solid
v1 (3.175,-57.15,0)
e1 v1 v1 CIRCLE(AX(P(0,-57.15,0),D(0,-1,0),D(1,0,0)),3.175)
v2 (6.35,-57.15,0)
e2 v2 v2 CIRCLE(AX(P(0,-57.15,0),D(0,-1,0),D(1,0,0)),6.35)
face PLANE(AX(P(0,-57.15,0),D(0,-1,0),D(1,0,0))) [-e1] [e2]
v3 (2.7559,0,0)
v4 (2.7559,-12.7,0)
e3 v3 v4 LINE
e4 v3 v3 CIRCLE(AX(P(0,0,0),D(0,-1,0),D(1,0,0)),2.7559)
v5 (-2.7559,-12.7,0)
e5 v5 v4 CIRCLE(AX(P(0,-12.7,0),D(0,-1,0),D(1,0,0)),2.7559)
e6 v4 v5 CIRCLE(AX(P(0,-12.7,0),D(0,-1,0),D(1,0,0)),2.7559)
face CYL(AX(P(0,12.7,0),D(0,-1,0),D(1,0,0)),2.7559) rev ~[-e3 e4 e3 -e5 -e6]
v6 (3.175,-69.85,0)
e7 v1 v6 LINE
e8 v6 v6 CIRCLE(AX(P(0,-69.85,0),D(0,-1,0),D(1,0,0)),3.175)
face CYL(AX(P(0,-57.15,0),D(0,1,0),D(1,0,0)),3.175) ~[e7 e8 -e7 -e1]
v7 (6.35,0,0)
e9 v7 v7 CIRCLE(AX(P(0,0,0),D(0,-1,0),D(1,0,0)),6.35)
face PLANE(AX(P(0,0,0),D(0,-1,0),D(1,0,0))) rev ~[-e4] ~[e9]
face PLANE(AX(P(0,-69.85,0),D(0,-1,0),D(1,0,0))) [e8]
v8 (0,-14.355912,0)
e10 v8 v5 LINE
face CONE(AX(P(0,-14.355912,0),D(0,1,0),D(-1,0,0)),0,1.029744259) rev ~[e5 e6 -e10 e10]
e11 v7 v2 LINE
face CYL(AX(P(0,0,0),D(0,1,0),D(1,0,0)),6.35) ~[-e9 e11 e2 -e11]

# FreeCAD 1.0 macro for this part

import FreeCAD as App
import Part
import Sketcher
from FreeCAD import Vector
Q = App.Units.Quantity

doc = App.newDocument("Part")
params = doc.addObject("Spreadsheet::Sheet", "Params")
for row, (alias, value) in enumerate([
    ("sketch1_diameter", "0.5 in"),
    ("pad1_length", "2.25 in"),
    ("sketch2_diameter", "0.25 in"),
    ("pad2_length", "0.5 in"),
    ("sketch3_diameter", "0.217 in"),
    ("hole_diameter", "0.217 in"),
    ("hole_depth", "0.5 in"),
], start=1):
    params.set(f"A{row}", alias)
    params.set(f"B{row}", "=" + value)
    params.setAlias(f"B{row}", alias)

body = doc.addObject("PartDesign::Body", "Body")

# Sketch on XZ plane
sketch1 = body.newObject("Sketcher::SketchObject", "Sketch")
sketch1.AttachmentSupport = (doc.getObject("XZ_Plane"), [""])
sketch1.MapMode = "FlatFace"
sketch1.addGeometry(Part.Circle(Vector(0, 0, 0), Vector(0, 0, 1), 6), False)
sketch1.addConstraint(Sketcher.Constraint("Coincident", 0, 3, -1, 1))
sketch1.addConstraint(Sketcher.Constraint("Diameter", 0, Q("0.5 in")))
sketch1.setExpression("Constraints[1]", "Params.sketch1_diameter")
pad1 = body.newObject("PartDesign::Pad", "Pad")
pad1.Profile = sketch1
pad1.setExpression("Length", "Params.pad1_length")

# Sketch on XZ plane
sketch2 = body.newObject("Sketcher::SketchObject", "Sketch001")
sketch2.AttachmentSupport = (doc.getObject("XZ_Plane"), [""])
sketch2.MapMode = "FlatFace"
sketch2.AttachmentOffset = App.Placement(Vector(0, 0, 2.25 * 25.4), App.Rotation())
sketch2.addGeometry(Part.Circle(Vector(0, 0, 0), Vector(0, 0, 1), 3.2), False)
sketch2.addConstraint(Sketcher.Constraint("Coincident", 0, 3, -1, 1))
sketch2.addConstraint(Sketcher.Constraint("Diameter", 0, Q("0.25 in")))
sketch2.setExpression("Constraints[1]", "Params.sketch2_diameter")
pad2 = body.newObject("PartDesign::Pad", "Pad001")
pad2.Profile = sketch2
pad2.setExpression("Length", "Params.pad2_length")

# Sketch on XZ plane
sketch3 = body.newObject("Sketcher::SketchObject", "Sketch002")
sketch3.AttachmentSupport = (doc.getObject("XZ_Plane"), [""])
sketch3.MapMode = "FlatFace"
sketch3.addGeometry(Part.Circle(Vector(0, 0, 0), Vector(0, 0, 1), 2.8), False)
sketch3.addConstraint(Sketcher.Constraint("Coincident", 0, 3, -1, 1))
sketch3.addConstraint(Sketcher.Constraint("Diameter", 0, Q("0.217 in")))
sketch3.setExpression("Constraints[1]", "Params.sketch3_diameter")
doc.recompute()
hole = body.newObject("PartDesign::Hole", "Hole")
hole.Profile = sketch3
hole.ThreadType = "None"
hole.setExpression("Diameter", "Params.hole_diameter")
hole.DepthType = "Dimension"
hole.setExpression("Depth", "Params.hole_depth")
hole.DrillPoint = "Angled"
hole.DrillPointAngle = 118
hole.Reversed = True

doc.recompute()
